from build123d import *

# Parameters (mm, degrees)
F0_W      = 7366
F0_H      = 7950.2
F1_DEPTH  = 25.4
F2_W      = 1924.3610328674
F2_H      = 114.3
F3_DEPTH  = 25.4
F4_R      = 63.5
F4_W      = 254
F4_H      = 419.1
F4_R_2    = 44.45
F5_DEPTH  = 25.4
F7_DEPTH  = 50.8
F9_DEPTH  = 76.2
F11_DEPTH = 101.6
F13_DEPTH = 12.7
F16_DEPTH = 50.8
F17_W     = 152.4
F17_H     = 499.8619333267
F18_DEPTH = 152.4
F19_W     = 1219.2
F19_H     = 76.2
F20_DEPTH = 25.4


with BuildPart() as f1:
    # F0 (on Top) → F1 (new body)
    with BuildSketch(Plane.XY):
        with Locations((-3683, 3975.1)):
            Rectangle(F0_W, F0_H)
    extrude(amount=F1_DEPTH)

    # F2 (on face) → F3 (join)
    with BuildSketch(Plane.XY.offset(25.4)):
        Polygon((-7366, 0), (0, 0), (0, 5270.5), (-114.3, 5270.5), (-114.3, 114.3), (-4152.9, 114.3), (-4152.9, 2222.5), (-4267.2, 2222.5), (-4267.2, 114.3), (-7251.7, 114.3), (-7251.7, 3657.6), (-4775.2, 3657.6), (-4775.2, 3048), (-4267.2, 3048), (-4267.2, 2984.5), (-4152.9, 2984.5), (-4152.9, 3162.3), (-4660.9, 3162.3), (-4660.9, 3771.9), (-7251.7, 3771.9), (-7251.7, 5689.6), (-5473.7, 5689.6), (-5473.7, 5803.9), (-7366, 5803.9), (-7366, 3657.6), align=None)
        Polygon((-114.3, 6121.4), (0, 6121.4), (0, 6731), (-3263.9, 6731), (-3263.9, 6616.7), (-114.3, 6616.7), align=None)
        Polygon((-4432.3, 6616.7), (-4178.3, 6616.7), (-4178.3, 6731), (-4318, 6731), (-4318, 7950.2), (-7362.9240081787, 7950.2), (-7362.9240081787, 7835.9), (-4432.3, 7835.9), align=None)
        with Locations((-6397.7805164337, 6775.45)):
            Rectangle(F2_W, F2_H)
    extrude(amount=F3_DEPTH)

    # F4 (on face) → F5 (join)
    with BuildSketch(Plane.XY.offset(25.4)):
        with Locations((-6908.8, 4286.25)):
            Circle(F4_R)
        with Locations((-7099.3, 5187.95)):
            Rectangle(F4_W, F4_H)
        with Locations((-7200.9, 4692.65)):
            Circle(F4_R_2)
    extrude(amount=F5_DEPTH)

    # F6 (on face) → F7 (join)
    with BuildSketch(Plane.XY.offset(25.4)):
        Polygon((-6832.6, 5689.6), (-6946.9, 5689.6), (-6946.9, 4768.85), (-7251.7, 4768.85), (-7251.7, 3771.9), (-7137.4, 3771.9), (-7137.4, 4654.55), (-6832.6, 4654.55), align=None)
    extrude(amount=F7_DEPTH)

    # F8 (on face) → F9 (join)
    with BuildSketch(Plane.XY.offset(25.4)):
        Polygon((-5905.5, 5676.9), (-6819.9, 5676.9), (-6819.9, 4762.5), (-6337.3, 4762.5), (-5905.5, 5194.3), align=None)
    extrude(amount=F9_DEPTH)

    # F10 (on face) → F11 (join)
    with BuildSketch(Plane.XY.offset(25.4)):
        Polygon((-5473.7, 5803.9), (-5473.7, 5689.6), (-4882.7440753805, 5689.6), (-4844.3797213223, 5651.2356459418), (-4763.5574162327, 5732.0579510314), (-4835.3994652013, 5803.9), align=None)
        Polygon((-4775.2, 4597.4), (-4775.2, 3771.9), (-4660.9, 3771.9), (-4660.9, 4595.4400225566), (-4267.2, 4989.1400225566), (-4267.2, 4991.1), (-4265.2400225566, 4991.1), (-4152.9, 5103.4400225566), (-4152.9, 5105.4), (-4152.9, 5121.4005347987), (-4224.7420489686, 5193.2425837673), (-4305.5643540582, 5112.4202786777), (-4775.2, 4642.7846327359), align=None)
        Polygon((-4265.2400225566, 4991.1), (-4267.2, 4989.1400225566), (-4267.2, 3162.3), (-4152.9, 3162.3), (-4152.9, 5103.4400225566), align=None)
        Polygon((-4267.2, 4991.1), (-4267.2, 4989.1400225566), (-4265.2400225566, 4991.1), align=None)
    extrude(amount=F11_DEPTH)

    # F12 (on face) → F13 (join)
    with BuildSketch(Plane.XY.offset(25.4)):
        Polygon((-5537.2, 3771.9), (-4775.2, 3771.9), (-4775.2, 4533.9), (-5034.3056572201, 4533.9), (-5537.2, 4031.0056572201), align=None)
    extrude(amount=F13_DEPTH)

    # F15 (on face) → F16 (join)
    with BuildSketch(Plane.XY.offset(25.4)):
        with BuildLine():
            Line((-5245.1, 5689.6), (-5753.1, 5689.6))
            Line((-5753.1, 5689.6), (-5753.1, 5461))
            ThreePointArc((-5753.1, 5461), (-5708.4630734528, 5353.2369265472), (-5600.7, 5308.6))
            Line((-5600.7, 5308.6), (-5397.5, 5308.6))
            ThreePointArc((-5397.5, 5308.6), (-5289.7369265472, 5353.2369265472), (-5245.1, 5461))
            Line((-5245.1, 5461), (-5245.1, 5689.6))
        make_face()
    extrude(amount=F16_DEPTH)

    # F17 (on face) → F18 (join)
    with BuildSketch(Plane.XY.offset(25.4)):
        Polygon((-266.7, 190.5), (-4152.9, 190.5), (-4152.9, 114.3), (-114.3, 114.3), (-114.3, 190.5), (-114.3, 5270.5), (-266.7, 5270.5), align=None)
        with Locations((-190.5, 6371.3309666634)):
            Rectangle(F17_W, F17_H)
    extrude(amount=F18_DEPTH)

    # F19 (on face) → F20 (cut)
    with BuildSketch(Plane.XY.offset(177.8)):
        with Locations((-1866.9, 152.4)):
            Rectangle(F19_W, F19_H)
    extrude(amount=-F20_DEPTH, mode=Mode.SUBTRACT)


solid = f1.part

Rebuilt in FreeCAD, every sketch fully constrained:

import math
import FreeCAD as App
import Part
import Sketcher

V = App.Vector
Q = App.Units.Quantity

doc = App.newDocument("Part")
body = doc.addObject("PartDesign::Body", "Body")

# Sketch on XY plane
sketch1 = doc.addObject("Sketcher::SketchObject", "Sketch")
body.addObject(sketch1)
sketch1.AttachmentSupport = (doc.XY_Plane, [""])
sketch1.MapMode = "FlatFace"
sketch1.addGeometry(Part.LineSegment(V(-7366, 7950, 0), V(-7366, 0, 0)), False)
sketch1.addGeometry(Part.LineSegment(V(-7366, 0, 0), V(0, 0, 0)), False)
sketch1.addGeometry(Part.LineSegment(V(0, 0, 0), V(0, 7950, 0)), False)
sketch1.addGeometry(Part.LineSegment(V(0, 7950, 0), V(-7366, 7950, 0)), False)
sketch1.addConstraint(Sketcher.Constraint("Coincident", 0, 2, 1, 1))
sketch1.addConstraint(Sketcher.Constraint("Coincident", 1, 2, 2, 1))
sketch1.addConstraint(Sketcher.Constraint("Coincident", 2, 2, 3, 1))
sketch1.addConstraint(Sketcher.Constraint("Coincident", 3, 2, 0, 1))
sketch1.addConstraint(Sketcher.Constraint("Vertical", 0))
sketch1.addConstraint(Sketcher.Constraint("Horizontal", 1))
sketch1.addConstraint(Sketcher.Constraint("Vertical", 2))
sketch1.addConstraint(Sketcher.Constraint("Horizontal", 3))
sketch1.addConstraint(Sketcher.Constraint("Coincident", 1, 2, -1, 1))
sketch1.addConstraint(Sketcher.Constraint("DistanceX", 1, 1, 1, 2, Q("290 in")))
sketch1.addConstraint(Sketcher.Constraint("DistanceY", 0, 2, 0, 1, Q("313 in")))
pad1 = doc.addObject("PartDesign::Pad", "Pad")
body.addObject(pad1)
pad1.Profile = sketch1
pad1.Length = Q("1 in")

# Sketch on XY plane
sketch2 = doc.addObject("Sketcher::SketchObject", "Sketch001")
body.addObject(sketch2)
sketch2.AttachmentSupport = (doc.XY_Plane, [""])
sketch2.MapMode = "FlatFace"
sketch2.AttachmentOffset = App.Placement(V(0, 0, 1 * 25.4), App.Rotation())
sketch2.addGeometry(Part.LineSegment(V(-7366, 0, 0), V(0, 0, 0)), False)
sketch2.addGeometry(Part.LineSegment(V(0, 0, 0), V(0, 5270, 0)), False)
sketch2.addGeometry(Part.LineSegment(V(0, 5270, 0), V(-114, 5270, 0)), False)
sketch2.addGeometry(Part.LineSegment(V(-114, 5270, 0), V(-114, 114, 0)), False)
sketch2.addGeometry(Part.LineSegment(V(-114, 114, 0), V(-4153, 114, 0)), False)
sketch2.addGeometry(Part.LineSegment(V(-4153, 114, 0), V(-4153, 2222, 0)), False)
sketch2.addGeometry(Part.LineSegment(V(-4153, 2222, 0), V(-4267, 2222, 0)), False)
sketch2.addGeometry(Part.LineSegment(V(-4267, 2222, 0), V(-4267, 114, 0)), False)
sketch2.addGeometry(Part.LineSegment(V(-4267, 114, 0), V(-7252, 114, 0)), False)
sketch2.addGeometry(Part.LineSegment(V(-7252, 114, 0), V(-7252, 3658, 0)), False)
sketch2.addGeometry(Part.LineSegment(V(-7252, 3658, 0), V(-4775, 3658, 0)), False)
sketch2.addGeometry(Part.LineSegment(V(-4775, 3658, 0), V(-4775, 3048, 0)), False)
sketch2.addGeometry(Part.LineSegment(V(-4775, 3048, 0), V(-4267, 3048, 0)), False)
sketch2.addGeometry(Part.LineSegment(V(-4267, 3048, 0), V(-4267, 2984, 0)), False)
sketch2.addGeometry(Part.LineSegment(V(-4267, 2984, 0), V(-4153, 2984, 0)), False)
sketch2.addGeometry(Part.LineSegment(V(-4153, 2984, 0), V(-4153, 3162, 0)), False)
sketch2.addGeometry(Part.LineSegment(V(-4153, 3162, 0), V(-4661, 3162, 0)), False)
sketch2.addGeometry(Part.LineSegment(V(-4661, 3162, 0), V(-4661, 3772, 0)), False)
sketch2.addGeometry(Part.LineSegment(V(-4661, 3772, 0), V(-7252, 3772, 0)), False)
sketch2.addGeometry(Part.LineSegment(V(-7252, 3772, 0), V(-7252, 5690, 0)), False)
sketch2.addGeometry(Part.LineSegment(V(-7252, 5690, 0), V(-5474, 5690, 0)), False)
sketch2.addGeometry(Part.LineSegment(V(-5474, 5690, 0), V(-5474, 5804, 0)), False)
sketch2.addGeometry(Part.LineSegment(V(-5474, 5804, 0), V(-7366, 5804, 0)), False)
sketch2.addGeometry(Part.LineSegment(V(-7366, 5804, 0), V(-7366, 0, 0)), False)
sketch2.addGeometry(Part.LineSegment(V(-114, 6121, 0), V(0, 6121, 0)), False)
sketch2.addGeometry(Part.LineSegment(V(0, 6121, 0), V(0, 6731, 0)), False)
sketch2.addGeometry(Part.LineSegment(V(0, 6731, 0), V(-3264, 6731, 0)), False)
sketch2.addGeometry(Part.LineSegment(V(-3264, 6731, 0), V(-3264, 6617, 0)), False)
sketch2.addGeometry(Part.LineSegment(V(-3264, 6617, 0), V(-114, 6617, 0)), False)
sketch2.addGeometry(Part.LineSegment(V(-114, 6617, 0), V(-114, 6121, 0)), False)
sketch2.addGeometry(Part.LineSegment(V(-4432, 6617, 0), V(-4178, 6617, 0)), False)
sketch2.addGeometry(Part.LineSegment(V(-4178, 6617, 0), V(-4178, 6731, 0)), False)
sketch2.addGeometry(Part.LineSegment(V(-4178, 6731, 0), V(-4318, 6731, 0)), False)
sketch2.addGeometry(Part.LineSegment(V(-4318, 6731, 0), V(-4318, 7950, 0)), False)
sketch2.addGeometry(Part.LineSegment(V(-4318, 7950, 0), V(-7363, 7950, 0)), False)
sketch2.addGeometry(Part.LineSegment(V(-7363, 7950, 0), V(-7363, 7836, 0)), False)
sketch2.addGeometry(Part.LineSegment(V(-7363, 7836, 0), V(-4432, 7836, 0)), False)
sketch2.addGeometry(Part.LineSegment(V(-4432, 7836, 0), V(-4432, 6617, 0)), False)
sketch2.addGeometry(Part.LineSegment(V(-7360, 6833, 0), V(-7360, 6718, 0)), False)
sketch2.addGeometry(Part.LineSegment(V(-7360, 6718, 0), V(-5436, 6718, 0)), False)
sketch2.addGeometry(Part.LineSegment(V(-5436, 6718, 0), V(-5436, 6833, 0)), False)
sketch2.addGeometry(Part.LineSegment(V(-5436, 6833, 0), V(-7360, 6833, 0)), False)
sketch2.addConstraint(Sketcher.Constraint("Coincident", 0, 2, 1, 1))
sketch2.addConstraint(Sketcher.Constraint("Coincident", 1, 2, 2, 1))
sketch2.addConstraint(Sketcher.Constraint("Coincident", 2, 2, 3, 1))
sketch2.addConstraint(Sketcher.Constraint("Coincident", 3, 2, 4, 1))
sketch2.addConstraint(Sketcher.Constraint("Coincident", 4, 2, 5, 1))
sketch2.addConstraint(Sketcher.Constraint("Coincident", 5, 2, 6, 1))
sketch2.addConstraint(Sketcher.Constraint("Coincident", 6, 2, 7, 1))
sketch2.addConstraint(Sketcher.Constraint("Coincident", 7, 2, 8, 1))
sketch2.addConstraint(Sketcher.Constraint("Coincident", 8, 2, 9, 1))
sketch2.addConstraint(Sketcher.Constraint("Coincident", 9, 2, 10, 1))
sketch2.addConstraint(Sketcher.Constraint("Coincident", 10, 2, 11, 1))
sketch2.addConstraint(Sketcher.Constraint("Coincident", 11, 2, 12, 1))
sketch2.addConstraint(Sketcher.Constraint("Coincident", 12, 2, 13, 1))
sketch2.addConstraint(Sketcher.Constraint("Coincident", 13, 2, 14, 1))
sketch2.addConstraint(Sketcher.Constraint("Coincident", 14, 2, 15, 1))
sketch2.addConstraint(Sketcher.Constraint("Coincident", 15, 2, 16, 1))
sketch2.addConstraint(Sketcher.Constraint("Coincident", 16, 2, 17, 1))
sketch2.addConstraint(Sketcher.Constraint("Coincident", 17, 2, 18, 1))
sketch2.addConstraint(Sketcher.Constraint("Coincident", 18, 2, 19, 1))
sketch2.addConstraint(Sketcher.Constraint("Coincident", 19, 2, 20, 1))
sketch2.addConstraint(Sketcher.Constraint("Coincident", 20, 2, 21, 1))
sketch2.addConstraint(Sketcher.Constraint("Coincident", 21, 2, 22, 1))
sketch2.addConstraint(Sketcher.Constraint("Coincident", 22, 2, 23, 1))
sketch2.addConstraint(Sketcher.Constraint("Coincident", 23, 2, 0, 1))
sketch2.addConstraint(Sketcher.Constraint("Coincident", 24, 2, 25, 1))
sketch2.addConstraint(Sketcher.Constraint("Coincident", 25, 2, 26, 1))
sketch2.addConstraint(Sketcher.Constraint("Coincident", 26, 2, 27, 1))
sketch2.addConstraint(Sketcher.Constraint("Coincident", 27, 2, 28, 1))
sketch2.addConstraint(Sketcher.Constraint("Coincident", 28, 2, 29, 1))
sketch2.addConstraint(Sketcher.Constraint("Coincident", 29, 2, 24, 1))
sketch2.addConstraint(Sketcher.Constraint("Coincident", 30, 2, 31, 1))
sketch2.addConstraint(Sketcher.Constraint("Coincident", 31, 2, 32, 1))
sketch2.addConstraint(Sketcher.Constraint("Coincident", 32, 2, 33, 1))
sketch2.addConstraint(Sketcher.Constraint("Coincident", 33, 2, 34, 1))
sketch2.addConstraint(Sketcher.Constraint("Coincident", 34, 2, 35, 1))
sketch2.addConstraint(Sketcher.Constraint("Coincident", 35, 2, 36, 1))
sketch2.addConstraint(Sketcher.Constraint("Coincident", 36, 2, 37, 1))
sketch2.addConstraint(Sketcher.Constraint("Coincident", 37, 2, 30, 1))
sketch2.addConstraint(Sketcher.Constraint("Coincident", 38, 2, 39, 1))
sketch2.addConstraint(Sketcher.Constraint("Coincident", 39, 2, 40, 1))
sketch2.addConstraint(Sketcher.Constraint("Coincident", 40, 2, 41, 1))
sketch2.addConstraint(Sketcher.Constraint("Coincident", 41, 2, 38, 1))
sketch2.addConstraint(Sketcher.Constraint("Horizontal", 0))
sketch2.addConstraint(Sketcher.Constraint("Vertical", 1))
sketch2.addConstraint(Sketcher.Constraint("Horizontal", 2))
sketch2.addConstraint(Sketcher.Constraint("Vertical", 3))
sketch2.addConstraint(Sketcher.Constraint("Horizontal", 4))
sketch2.addConstraint(Sketcher.Constraint("Vertical", 5))
sketch2.addConstraint(Sketcher.Constraint("Horizontal", 6))
sketch2.addConstraint(Sketcher.Constraint("Vertical", 7))
sketch2.addConstraint(Sketcher.Constraint("Horizontal", 8))
sketch2.addConstraint(Sketcher.Constraint("Vertical", 9))
sketch2.addConstraint(Sketcher.Constraint("Horizontal", 10))
sketch2.addConstraint(Sketcher.Constraint("Vertical", 11))
sketch2.addConstraint(Sketcher.Constraint("Horizontal", 12))
sketch2.addConstraint(Sketcher.Constraint("Vertical", 13))
sketch2.addConstraint(Sketcher.Constraint("Horizontal", 14))
sketch2.addConstraint(Sketcher.Constraint("Vertical", 15))
sketch2.addConstraint(Sketcher.Constraint("Horizontal", 16))
sketch2.addConstraint(Sketcher.Constraint("Vertical", 17))
sketch2.addConstraint(Sketcher.Constraint("Horizontal", 18))
sketch2.addConstraint(Sketcher.Constraint("Vertical", 19))
sketch2.addConstraint(Sketcher.Constraint("Horizontal", 20))
sketch2.addConstraint(Sketcher.Constraint("Vertical", 21))
sketch2.addConstraint(Sketcher.Constraint("Horizontal", 22))
sketch2.addConstraint(Sketcher.Constraint("Vertical", 23))
sketch2.addConstraint(Sketcher.Constraint("Horizontal", 24))
sketch2.addConstraint(Sketcher.Constraint("Vertical", 25))
sketch2.addConstraint(Sketcher.Constraint("Horizontal", 26))
sketch2.addConstraint(Sketcher.Constraint("Vertical", 27))
sketch2.addConstraint(Sketcher.Constraint("Horizontal", 28))
sketch2.addConstraint(Sketcher.Constraint("Vertical", 29))
sketch2.addConstraint(Sketcher.Constraint("Horizontal", 30))
sketch2.addConstraint(Sketcher.Constraint("Vertical", 31))
sketch2.addConstraint(Sketcher.Constraint("Horizontal", 32))
sketch2.addConstraint(Sketcher.Constraint("Vertical", 33))
sketch2.addConstraint(Sketcher.Constraint("Horizontal", 34))
sketch2.addConstraint(Sketcher.Constraint("Vertical", 35))
sketch2.addConstraint(Sketcher.Constraint("Horizontal", 36))
sketch2.addConstraint(Sketcher.Constraint("Vertical", 37))
sketch2.addConstraint(Sketcher.Constraint("Vertical", 38))
sketch2.addConstraint(Sketcher.Constraint("Horizontal", 39))
sketch2.addConstraint(Sketcher.Constraint("Vertical", 40))
sketch2.addConstraint(Sketcher.Constraint("Horizontal", 41))
sketch2.addConstraint(Sketcher.Constraint("Coincident", 0, 2, -1, 1))
sketch2.addConstraint(Sketcher.Constraint("PointOnObject", 24, 2, -2))
sketch2.addConstraint(Sketcher.Constraint("Horizontal", 4, 2, 7, 2))
sketch2.addConstraint(Sketcher.Constraint("Horizontal", 28, 2, 30, 2))
sketch2.addConstraint(Sketcher.Constraint("Horizontal", 26, 2, 31, 2))
sketch2.addConstraint(Sketcher.Constraint("Vertical", 7, 2, 12, 2))
sketch2.addConstraint(Sketcher.Constraint("Vertical", 5, 2, 14, 2))
sketch2.addConstraint(Sketcher.Constraint("Vertical", 9, 2, 18, 2))
sketch2.addConstraint(Sketcher.Constraint("Vertical", 3, 2, 28, 2))
sketch2.addConstraint(Sketcher.Constraint("Equal", 2, 6))
sketch2.addConstraint(Sketcher.Constraint("Equal", 12, 16))
sketch2.addConstraint(Sketcher.Constraint("Equal", 11, 17))
sketch2.addConstraint(Sketcher.Constraint("Equal", 24, 21))
sketch2.addConstraint(Sketcher.Constraint("Equal", 17, 25))
sketch2.addConstraint(Sketcher.Constraint("Equal", 21, 27))
sketch2.addConstraint(Sketcher.Constraint("Equal", 31, 35))
sketch2.addConstraint(Sketcher.Constraint("Equal", 35, 38))
sketch2.addConstraint(Sketcher.Constraint("DistanceX", 0, 1, 0, 2, Q("290 in")))
sketch2.addConstraint(Sketcher.Constraint("DistanceX", 4, 2, 4, 1, Q("159 in")))
sketch2.addConstraint(Sketcher.Constraint("DistanceX", 12, 1, 12, 2, Q("20 in")))
sketch2.addConstraint(Sketcher.Constraint("DistanceX", 18, 2, 18, 1, Q("102 in")))
sketch2.addConstraint(Sketcher.Constraint("DistanceX", 20, 1, 20, 2, Q("70 in")))
sketch2.addConstraint(Sketcher.Constraint("DistanceX", 28, 1, 28, 2, Q("124 in")))
sketch2.addConstraint(Sketcher.Constraint("DistanceX", 30, 1, 30, 2, Q("10 in")))
sketch2.addConstraint(Sketcher.Constraint("DistanceY", 3, 2, 3, 1, Q("203 in")))
sketch2.addConstraint(Sketcher.Constraint("DistanceY", 5, 1, 5, 2, Q("83 in")))
sketch2.addConstraint(Sketcher.Constraint("DistanceY", 11, 2, 11, 1, Q("24 in")))
sketch2.addConstraint(Sketcher.Constraint("DistanceY", 15, 1, 15, 2, Q("7 in")))
sketch2.addConstraint(Sketcher.Constraint("DistanceY", 33, 1, 33, 2, Q("48 in")))
sketch2.addConstraint(Sketcher.Constraint("DistanceX", 2, 2, 2, 1, Q("4.5 in")))
sketch2.addConstraint(Sketcher.Constraint("DistanceX", 32, 2, 32, 1, Q("5.5 in")))
sketch2.addConstraint(Sketcher.Constraint("DistanceY", 1, 1, 1, 2, Q("207.5 in")))
sketch2.addConstraint(Sketcher.Constraint("DistanceY", 9, 1, 9, 2, Q("139.5 in")))
sketch2.addConstraint(Sketcher.Constraint("DistanceY", 13, 2, 13, 1, Q("2.5 in")))
sketch2.addConstraint(Sketcher.Constraint("DistanceY", 19, 1, 19, 2, Q("75.5 in")))
sketch2.addConstraint(Sketcher.Constraint("DistanceY", -1, 1, 24, 2, Q("241 in")))
sketch2.addConstraint(Sketcher.Constraint("DistanceX", 32, 2, -1, 1, Q("170 in")))
sketch2.addConstraint(Sketcher.Constraint("DistanceX", 39, 2, -1, 1, Q("214 in")))
sketch2.addConstraint(Sketcher.Constraint("DistanceY", -1, 1, 40, 2, Q("269 in")))
sketch2.addConstraint(Sketcher.Constraint("DistanceX", 34, 2, 34, 1, Q("3044.924008 mm")))
sketch2.addConstraint(Sketcher.Constraint("DistanceX", 39, 1, 39, 2, Q("1924.361033 mm")))
pad2 = doc.addObject("PartDesign::Pad", "Pad001")
body.addObject(pad2)
pad2.Profile = sketch2
pad2.Length = Q("1 in")

# Sketch on XY plane
sketch3 = doc.addObject("Sketcher::SketchObject", "Sketch002")
body.addObject(sketch3)
sketch3.AttachmentSupport = (doc.XY_Plane, [""])
sketch3.MapMode = "FlatFace"
sketch3.AttachmentOffset = App.Placement(V(0, 0, 1 * 25.4), App.Rotation())
sketch3.addGeometry(Part.Circle(V(-6909, 4286, 0), V(0, 0, 1), 64), False)
sketch3.addGeometry(Part.LineSegment(V(-7226, 5398, 0), V(-7226, 4978, 0)), False)
sketch3.addGeometry(Part.LineSegment(V(-7226, 4978, 0), V(-6972, 4978, 0)), False)
sketch3.addGeometry(Part.LineSegment(V(-6972, 4978, 0), V(-6972, 5398, 0)), False)
sketch3.addGeometry(Part.LineSegment(V(-6972, 5398, 0), V(-7226, 5398, 0)), False)
sketch3.addGeometry(Part.Circle(V(-7201, 4693, 0), V(0, 0, 1), 44), False)
sketch3.addConstraint(Sketcher.Constraint("Coincident", 1, 2, 2, 1))
sketch3.addConstraint(Sketcher.Constraint("Coincident", 2, 2, 3, 1))
sketch3.addConstraint(Sketcher.Constraint("Coincident", 3, 2, 4, 1))
sketch3.addConstraint(Sketcher.Constraint("Coincident", 4, 2, 1, 1))
sketch3.addConstraint(Sketcher.Constraint("Vertical", 1))
sketch3.addConstraint(Sketcher.Constraint("Horizontal", 2))
sketch3.addConstraint(Sketcher.Constraint("Vertical", 3))
sketch3.addConstraint(Sketcher.Constraint("Horizontal", 4))
sketch3.addConstraint(Sketcher.Constraint("Diameter", 0, Q("5 in")))
sketch3.addConstraint(Sketcher.Constraint("Diameter", 5, Q("3.5 in")))
sketch3.addConstraint(Sketcher.Constraint("DistanceX", 2, 1, 2, 2, Q("10 in")))
sketch3.addConstraint(Sketcher.Constraint("DistanceY", 1, 2, 1, 1, Q("16.5 in")))
sketch3.addConstraint(Sketcher.Constraint("DistanceX", 0, 3, -1, 1, Q("272 in")))
sketch3.addConstraint(Sketcher.Constraint("DistanceY", -1, 1, 1, 2, Q("196 in")))
sketch3.addConstraint(Sketcher.Constraint("DistanceY", 0, 3, 5, 3, Q("16 in")))
sketch3.addConstraint(Sketcher.Constraint("DistanceX", 1, 2, 5, 3, Q("1 in")))
sketch3.addConstraint(Sketcher.Constraint("DistanceX", 5, 3, -1, 1, Q("283.5 in")))
sketch3.addConstraint(Sketcher.Constraint("DistanceY", -1, 1, 0, 3, Q("168.75 in")))
pad3 = doc.addObject("PartDesign::Pad", "Pad002")
body.addObject(pad3)
pad3.Profile = sketch3
pad3.Length = Q("1 in")

# Sketch on XY plane
sketch4 = doc.addObject("Sketcher::SketchObject", "Sketch003")
body.addObject(sketch4)
sketch4.AttachmentSupport = (doc.XY_Plane, [""])
sketch4.MapMode = "FlatFace"
sketch4.AttachmentOffset = App.Placement(V(0, 0, 1 * 25.4), App.Rotation())
sketch4.addGeometry(Part.LineSegment(V(-6833, 5690, 0), V(-6947, 5690, 0)), False)
sketch4.addGeometry(Part.LineSegment(V(-6947, 5690, 0), V(-6947, 4769, 0)), False)
sketch4.addGeometry(Part.LineSegment(V(-6947, 4769, 0), V(-7252, 4769, 0)), False)
sketch4.addGeometry(Part.LineSegment(V(-7252, 4769, 0), V(-7252, 3772, 0)), False)
sketch4.addGeometry(Part.LineSegment(V(-7252, 3772, 0), V(-7137, 3772, 0)), False)
sketch4.addGeometry(Part.LineSegment(V(-7137, 3772, 0), V(-7137, 4655, 0)), False)
sketch4.addGeometry(Part.LineSegment(V(-7137, 4655, 0), V(-6833, 4655, 0)), False)
sketch4.addGeometry(Part.LineSegment(V(-6833, 4655, 0), V(-6833, 5690, 0)), False)
sketch4.addConstraint(Sketcher.Constraint("Coincident", 0, 2, 1, 1))
sketch4.addConstraint(Sketcher.Constraint("Coincident", 1, 2, 2, 1))
sketch4.addConstraint(Sketcher.Constraint("Coincident", 2, 2, 3, 1))
sketch4.addConstraint(Sketcher.Constraint("Coincident", 3, 2, 4, 1))
sketch4.addConstraint(Sketcher.Constraint("Coincident", 4, 2, 5, 1))
sketch4.addConstraint(Sketcher.Constraint("Coincident", 5, 2, 6, 1))
sketch4.addConstraint(Sketcher.Constraint("Coincident", 6, 2, 7, 1))
sketch4.addConstraint(Sketcher.Constraint("Coincident", 7, 2, 0, 1))
sketch4.addConstraint(Sketcher.Constraint("Horizontal", 0))
sketch4.addConstraint(Sketcher.Constraint("Vertical", 1))
sketch4.addConstraint(Sketcher.Constraint("Horizontal", 2))
sketch4.addConstraint(Sketcher.Constraint("Vertical", 3))
sketch4.addConstraint(Sketcher.Constraint("Horizontal", 4))
sketch4.addConstraint(Sketcher.Constraint("Vertical", 5))
sketch4.addConstraint(Sketcher.Constraint("Horizontal", 6))
sketch4.addConstraint(Sketcher.Constraint("Vertical", 7))
sketch4.addConstraint(Sketcher.Constraint("Equal", 0, 4))
sketch4.addConstraint(Sketcher.Constraint("DistanceX", 2, 2, 2, 1, Q("12 in")))
sketch4.addConstraint(Sketcher.Constraint("DistanceX", 0, 2, 0, 1, Q("4.5 in")))
sketch4.addConstraint(Sketcher.Constraint("DistanceY", -1, 1, 0, 2, Q("224 in")))
sketch4.addConstraint(Sketcher.Constraint("DistanceX", 4, 2, -1, 1, Q("281 in")))
sketch4.addConstraint(Sketcher.Constraint("DistanceY", 1, 2, 1, 1, Q("36.25 in")))
sketch4.addConstraint(Sketcher.Constraint("DistanceY", 3, 2, 3, 1, Q("39.25 in")))
sketch4.addConstraint(Sketcher.Constraint("DistanceY", 5, 1, 5, 2, Q("34.75 in")))
pad4 = doc.addObject("PartDesign::Pad", "Pad003")
body.addObject(pad4)
pad4.Profile = sketch4
pad4.Length = Q("2 in")

# Sketch on XY plane
sketch5 = doc.addObject("Sketcher::SketchObject", "Sketch004")
body.addObject(sketch5)
sketch5.AttachmentSupport = (doc.XY_Plane, [""])
sketch5.MapMode = "FlatFace"
sketch5.AttachmentOffset = App.Placement(V(0, 0, 1 * 25.4), App.Rotation())
sketch5.addGeometry(Part.LineSegment(V(-5906, 5677, 0), V(-6820, 5677, 0)), False)
sketch5.addGeometry(Part.LineSegment(V(-6820, 5677, 0), V(-6820, 4762, 0)), False)
sketch5.addGeometry(Part.LineSegment(V(-6820, 4762, 0), V(-6337, 4762, 0)), False)
sketch5.addGeometry(Part.LineSegment(V(-6337, 4762, 0), V(-5906, 5194, 0)), False)
sketch5.addGeometry(Part.LineSegment(V(-5906, 5194, 0), V(-5906, 5677, 0)), False)
sketch5.addConstraint(Sketcher.Constraint("Coincident", 0, 2, 1, 1))
sketch5.addConstraint(Sketcher.Constraint("Coincident", 1, 2, 2, 1))
sketch5.addConstraint(Sketcher.Constraint("Coincident", 2, 2, 3, 1))
sketch5.addConstraint(Sketcher.Constraint("Coincident", 3, 2, 4, 1))
sketch5.addConstraint(Sketcher.Constraint("Coincident", 4, 2, 0, 1))
sketch5.addConstraint(Sketcher.Constraint("Horizontal", 0))
sketch5.addConstraint(Sketcher.Constraint("Vertical", 1))
sketch5.addConstraint(Sketcher.Constraint("Horizontal", 2))
sketch5.addConstraint(Sketcher.Constraint("Vertical", 4))
sketch5.addConstraint(Sketcher.Constraint("Equal", 0, 1))
sketch5.addConstraint(Sketcher.Constraint("Equal", 2, 4))
sketch5.addConstraint(Sketcher.Constraint("DistanceX", 0, 2, 0, 1, Q("36 in")))
sketch5.addConstraint(Sketcher.Constraint("DistanceX", 2, 1, 2, 2, Q("19 in")))
sketch5.addConstraint(Sketcher.Constraint("DistanceX", 0, 2, -1, 1, Q("268.5 in")))
sketch5.addConstraint(Sketcher.Constraint("DistanceY", -1, 1, 0, 2, Q("223.5 in")))
pad5 = doc.addObject("PartDesign::Pad", "Pad004")
body.addObject(pad5)
pad5.Profile = sketch5
pad5.Length = Q("3 in")

# Sketch on XY plane
sketch6 = doc.addObject("Sketcher::SketchObject", "Sketch005")
body.addObject(sketch6)
sketch6.AttachmentSupport = (doc.XY_Plane, [""])
sketch6.MapMode = "FlatFace"
sketch6.AttachmentOffset = App.Placement(V(0, 0, 1 * 25.4), App.Rotation())
sketch6.addGeometry(Part.LineSegment(V(-5474, 5804, 0), V(-5474, 5690, 0)), False)
sketch6.addGeometry(Part.LineSegment(V(-5474, 5690, 0), V(-4883, 5690, 0)), False)
sketch6.addGeometry(Part.LineSegment(V(-4883, 5690, 0), V(-4844, 5651, 0)), False)
sketch6.addGeometry(Part.LineSegment(V(-4844, 5651, 0), V(-4764, 5732, 0)), False)
sketch6.addGeometry(Part.LineSegment(V(-4764, 5732, 0), V(-4835, 5804, 0)), False)
sketch6.addGeometry(Part.LineSegment(V(-4835, 5804, 0), V(-5474, 5804, 0)), False)
sketch6.addGeometry(Part.LineSegment(V(-4661, 4595, 0), V(-4267, 4989, 0)), False)
sketch6.addGeometry(Part.LineSegment(V(-4267, 4989, 0), V(-4267, 3162, 0)), False)
sketch6.addGeometry(Part.LineSegment(V(-4267, 3162, 0), V(-4153, 3162, 0)), False)
sketch6.addGeometry(Part.LineSegment(V(-4153, 3162, 0), V(-4153, 5121, 0)), False)
sketch6.addGeometry(Part.LineSegment(V(-4153, 5121, 0), V(-4225, 5193, 0)), False)
sketch6.addGeometry(Part.LineSegment(V(-4225, 5193, 0), V(-4775, 4643, 0)), False)
sketch6.addGeometry(Part.LineSegment(V(-4775, 4643, 0), V(-4775, 3772, 0)), False)
sketch6.addGeometry(Part.LineSegment(V(-4775, 3772, 0), V(-4661, 3772, 0)), False)
sketch6.addGeometry(Part.LineSegment(V(-4661, 3772, 0), V(-4661, 4595, 0)), False)
sketch6.addConstraint(Sketcher.Constraint("Coincident", 0, 2, 1, 1))
sketch6.addConstraint(Sketcher.Constraint("Coincident", 1, 2, 2, 1))
sketch6.addConstraint(Sketcher.Constraint("Coincident", 2, 2, 3, 1))
sketch6.addConstraint(Sketcher.Constraint("Coincident", 3, 2, 4, 1))
sketch6.addConstraint(Sketcher.Constraint("Coincident", 4, 2, 5, 1))
sketch6.addConstraint(Sketcher.Constraint("Coincident", 5, 2, 0, 1))
sketch6.addConstraint(Sketcher.Constraint("Coincident", 6, 2, 7, 1))
sketch6.addConstraint(Sketcher.Constraint("Coincident", 7, 2, 8, 1))
sketch6.addConstraint(Sketcher.Constraint("Coincident", 8, 2, 9, 1))
sketch6.addConstraint(Sketcher.Constraint("Coincident", 9, 2, 10, 1))
sketch6.addConstraint(Sketcher.Constraint("Coincident", 10, 2, 11, 1))
sketch6.addConstraint(Sketcher.Constraint("Coincident", 11, 2, 12, 1))
sketch6.addConstraint(Sketcher.Constraint("Coincident", 12, 2, 13, 1))
sketch6.addConstraint(Sketcher.Constraint("Coincident", 13, 2, 14, 1))
sketch6.addConstraint(Sketcher.Constraint("Coincident", 14, 2, 6, 1))
sketch6.addConstraint(Sketcher.Constraint("Vertical", 0))
sketch6.addConstraint(Sketcher.Constraint("Horizontal", 1))
sketch6.addConstraint(Sketcher.Constraint("Horizontal", 5))
sketch6.addConstraint(Sketcher.Constraint("Vertical", 7))
sketch6.addConstraint(Sketcher.Constraint("Horizontal", 8))
sketch6.addConstraint(Sketcher.Constraint("Vertical", 9))
sketch6.addConstraint(Sketcher.Constraint("Vertical", 12))
sketch6.addConstraint(Sketcher.Constraint("Horizontal", 13))
sketch6.addConstraint(Sketcher.Constraint("Vertical", 14))
sketch6.addConstraint(Sketcher.Constraint("Perpendicular", 2, 3))
sketch6.addConstraint(Sketcher.Constraint("Perpendicular", 3, 4))
sketch6.addConstraint(Sketcher.Constraint("Perpendicular", 4, 6))
sketch6.addConstraint(Sketcher.Constraint("Perpendicular", 6, 10))
sketch6.addConstraint(Sketcher.Constraint("Perpendicular", 10, 11))
sketch6.addConstraint(Sketcher.Constraint("Equal", 8, 13))
sketch6.addConstraint(Sketcher.Constraint("Equal", 13, 0))
sketch6.addConstraint(Sketcher.Constraint("Equal", 4, 10))
sketch6.addConstraint(Sketcher.Constraint("Distance", 4, Q("4 in")))
sketch6.addConstraint(Sketcher.Constraint("DistanceX", 8, 1, 8, 2, Q("4.5 in")))
sketch6.addConstraint(Sketcher.Constraint("DistanceY", -1, 1, 0, 2, Q("224 in")))
sketch6.addConstraint(Sketcher.Constraint("DistanceX", 6, 2, -1, 1, Q("168 in")))
sketch6.addConstraint(Sketcher.Constraint("DistanceX", 11, 2, -1, 1, Q("188 in")))
sketch6.addConstraint(Sketcher.Constraint("Angle", 2, Q("-45 deg")))
sketch6.addConstraint(Sketcher.Constraint("DistanceY", 7, 2, 4, 2, Q("104 in")))
sketch6.addConstraint(Sketcher.Constraint("DistanceY", 7, 2, 12, 2, Q("24 in")))
sketch6.addConstraint(Sketcher.Constraint("Distance", 3, Q("4.5 in")))
sketch6.addConstraint(Sketcher.Constraint("DistanceX", 0, 2, -1, 1, Q("215.5 in")))
sketch6.addConstraint(Sketcher.Constraint("DistanceX", 1, 1, 1, 2, Q("590.955925 mm")))
sketch6.addConstraint(Sketcher.Constraint("DistanceY", 7, 2, 7, 1, Q("1826.840023 mm")))
sketch6.addConstraint(Sketcher.Constraint("DistanceY", 9, 1, 9, 2, Q("1959.100535 mm")))
pad6 = doc.addObject("PartDesign::Pad", "Pad005")
body.addObject(pad6)
pad6.Profile = sketch6
pad6.Length = Q("4 in")

# Sketch on XY plane
sketch7 = doc.addObject("Sketcher::SketchObject", "Sketch006")
body.addObject(sketch7)
sketch7.AttachmentSupport = (doc.XY_Plane, [""])
sketch7.MapMode = "FlatFace"
sketch7.AttachmentOffset = App.Placement(V(0, 0, 1 * 25.4), App.Rotation())
sketch7.addGeometry(Part.LineSegment(V(-5537, 3772, 0), V(-4775, 3772, 0)), False)
sketch7.addGeometry(Part.LineSegment(V(-4775, 3772, 0), V(-4775, 4534, 0)), False)
sketch7.addGeometry(Part.LineSegment(V(-4775, 4534, 0), V(-5034, 4534, 0)), False)
sketch7.addGeometry(Part.LineSegment(V(-5034, 4534, 0), V(-5537, 4031, 0)), False)
sketch7.addGeometry(Part.LineSegment(V(-5537, 4031, 0), V(-5537, 3772, 0)), False)
sketch7.addConstraint(Sketcher.Constraint("Coincident", 0, 2, 1, 1))
sketch7.addConstraint(Sketcher.Constraint("Coincident", 1, 2, 2, 1))
sketch7.addConstraint(Sketcher.Constraint("Coincident", 2, 2, 3, 1))
sketch7.addConstraint(Sketcher.Constraint("Coincident", 3, 2, 4, 1))
sketch7.addConstraint(Sketcher.Constraint("Coincident", 4, 2, 0, 1))
sketch7.addConstraint(Sketcher.Constraint("Horizontal", 0))
sketch7.addConstraint(Sketcher.Constraint("Vertical", 1))
sketch7.addConstraint(Sketcher.Constraint("Horizontal", 2))
sketch7.addConstraint(Sketcher.Constraint("Vertical", 4))
sketch7.addConstraint(Sketcher.Constraint("Equal", 0, 1))
sketch7.addConstraint(Sketcher.Constraint("Equal", 2, 4))
sketch7.addConstraint(Sketcher.Constraint("DistanceX", 0, 1, 0, 2, Q("30 in")))
sketch7.addConstraint(Sketcher.Constraint("Distance", 3, Q("28 in")))
sketch7.addConstraint(Sketcher.Constraint("DistanceX", 0, 2, -1, 1, Q("188 in")))
sketch7.addConstraint(Sketcher.Constraint("DistanceY", -1, 1, 0, 2, Q("148.5 in")))
pad7 = doc.addObject("PartDesign::Pad", "Pad006")
body.addObject(pad7)
pad7.Profile = sketch7
pad7.Length = Q("0.5 in")

# Sketch on XY plane
sketch8 = doc.addObject("Sketcher::SketchObject", "Sketch007")
body.addObject(sketch8)
sketch8.AttachmentSupport = (doc.XY_Plane, [""])
sketch8.MapMode = "FlatFace"
sketch8.AttachmentOffset = App.Placement(V(0, 0, 1 * 25.4), App.Rotation())
sketch8.addGeometry(Part.LineSegment(V(-5245, 5690, 0), V(-5753, 5690, 0)), False)
sketch8.addGeometry(Part.LineSegment(V(-5753, 5690, 0), V(-5753, 5461, 0)), False)
sketch8.addGeometry(Part.ArcOfCircle(Part.Circle(V(-5601, 5461, 0), V(0, 0, 1), 152), math.radians(180), math.radians(270)), False)
sketch8.addGeometry(Part.LineSegment(V(-5601, 5309, 0), V(-5398, 5309, 0)), False)
sketch8.addGeometry(Part.ArcOfCircle(Part.Circle(V(-5398, 5461, 0), V(0, 0, 1), 152), math.radians(-90), math.radians(0)), False)
sketch8.addGeometry(Part.LineSegment(V(-5245, 5461, 0), V(-5245, 5690, 0)), False)
sketch8.addConstraint(Sketcher.Constraint("Coincident", 0, 2, 1, 1))
sketch8.addConstraint(Sketcher.Constraint("Tangent", 1, 2, 2, 1))
sketch8.addConstraint(Sketcher.Constraint("Tangent", 2, 2, 3, 1))
sketch8.addConstraint(Sketcher.Constraint("Tangent", 3, 2, 4, 1))
sketch8.addConstraint(Sketcher.Constraint("Tangent", 4, 2, 5, 1))
sketch8.addConstraint(Sketcher.Constraint("Coincident", 5, 2, 0, 1))
sketch8.addConstraint(Sketcher.Constraint("Horizontal", 0))
sketch8.addConstraint(Sketcher.Constraint("Vertical", 1))
sketch8.addConstraint(Sketcher.Constraint("Horizontal", 3))
sketch8.addConstraint(Sketcher.Constraint("Vertical", 5))
sketch8.addConstraint(Sketcher.Constraint("Equal", 2, 4))
sketch8.addConstraint(Sketcher.Constraint("Radius", 2, Q("6 in")))
sketch8.addConstraint(Sketcher.Constraint("DistanceX", 0, 2, 0, 1, Q("20 in")))
sketch8.addConstraint(Sketcher.Constraint("DistanceY", 1, 2, 1, 1, Q("9 in")))
sketch8.addConstraint(Sketcher.Constraint("DistanceY", -1, 1, 2, 3, Q("215 in")))
sketch8.addConstraint(Sketcher.Constraint("DistanceX", 2, 3, -1, 1, Q("220.5 in")))
pad8 = doc.addObject("PartDesign::Pad", "Pad007")
body.addObject(pad8)
pad8.Profile = sketch8
pad8.Length = Q("2 in")

# Sketch on XY plane
sketch9 = doc.addObject("Sketcher::SketchObject", "Sketch008")
body.addObject(sketch9)
sketch9.AttachmentSupport = (doc.XY_Plane, [""])
sketch9.MapMode = "FlatFace"
sketch9.AttachmentOffset = App.Placement(V(0, 0, 1 * 25.4), App.Rotation())
sketch9.addGeometry(Part.LineSegment(V(-267, 190, 0), V(-4153, 190, 0)), False)
sketch9.addGeometry(Part.LineSegment(V(-4153, 190, 0), V(-4153, 114, 0)), False)
sketch9.addGeometry(Part.LineSegment(V(-4153, 114, 0), V(-114, 114, 0)), False)
sketch9.addGeometry(Part.LineSegment(V(-114, 114, 0), V(-114, 5270, 0)), False)
sketch9.addGeometry(Part.LineSegment(V(-114, 5270, 0), V(-267, 5270, 0)), False)
sketch9.addGeometry(Part.LineSegment(V(-267, 5270, 0), V(-267, 190, 0)), False)
sketch9.addGeometry(Part.LineSegment(V(-267, 6621, 0), V(-267, 6121, 0)), False)
sketch9.addGeometry(Part.LineSegment(V(-267, 6121, 0), V(-114, 6121, 0)), False)
sketch9.addGeometry(Part.LineSegment(V(-114, 6121, 0), V(-114, 6621, 0)), False)
sketch9.addGeometry(Part.LineSegment(V(-114, 6621, 0), V(-267, 6621, 0)), False)
sketch9.addConstraint(Sketcher.Constraint("Coincident", 0, 2, 1, 1))
sketch9.addConstraint(Sketcher.Constraint("Coincident", 1, 2, 2, 1))
sketch9.addConstraint(Sketcher.Constraint("Coincident", 2, 2, 3, 1))
sketch9.addConstraint(Sketcher.Constraint("Coincident", 3, 2, 4, 1))
sketch9.addConstraint(Sketcher.Constraint("Coincident", 4, 2, 5, 1))
sketch9.addConstraint(Sketcher.Constraint("Coincident", 5, 2, 0, 1))
sketch9.addConstraint(Sketcher.Constraint("Coincident", 6, 2, 7, 1))
sketch9.addConstraint(Sketcher.Constraint("Coincident", 7, 2, 8, 1))
sketch9.addConstraint(Sketcher.Constraint("Coincident", 8, 2, 9, 1))
sketch9.addConstraint(Sketcher.Constraint("Coincident", 9, 2, 6, 1))
sketch9.addConstraint(Sketcher.Constraint("Horizontal", 0))
sketch9.addConstraint(Sketcher.Constraint("Vertical", 1))
sketch9.addConstraint(Sketcher.Constraint("Horizontal", 2))
sketch9.addConstraint(Sketcher.Constraint("Vertical", 3))
sketch9.addConstraint(Sketcher.Constraint("Horizontal", 4))
sketch9.addConstraint(Sketcher.Constraint("Vertical", 5))
sketch9.addConstraint(Sketcher.Constraint("Vertical", 6))
sketch9.addConstraint(Sketcher.Constraint("Horizontal", 7))
sketch9.addConstraint(Sketcher.Constraint("Vertical", 8))
sketch9.addConstraint(Sketcher.Constraint("Horizontal", 9))
sketch9.addConstraint(Sketcher.Constraint("Vertical", 5, 2, 6, 2))
sketch9.addConstraint(Sketcher.Constraint("Vertical", 3, 2, 7, 2))
sketch9.addConstraint(Sketcher.Constraint("DistanceX", 0, 2, 0, 1, Q("153 in")))
sketch9.addConstraint(Sketcher.Constraint("DistanceX", 2, 1, 2, 2, Q("159 in")))
sketch9.addConstraint(Sketcher.Constraint("DistanceY", 1, 2, 1, 1, Q("3 in")))
sketch9.addConstraint(Sketcher.Constraint("DistanceY", 3, 1, 3, 2, Q("203 in")))
sketch9.addConstraint(Sketcher.Constraint("DistanceY", -1, 1, 6, 2, Q("241 in")))
sketch9.addConstraint(Sketcher.Constraint("DistanceX", 0, 2, -1, 1, Q("163.5 in")))
sketch9.addConstraint(Sketcher.Constraint("DistanceY", -1, 1, 0, 2, Q("7.5 in")))
sketch9.addConstraint(Sketcher.Constraint("DistanceY", 6, 2, 6, 1, Q("499.861933 mm")))
pad9 = doc.addObject("PartDesign::Pad", "Pad008")
body.addObject(pad9)
pad9.Profile = sketch9
pad9.Length = Q("6 in")

# Sketch on XY plane
sketch10 = doc.addObject("Sketcher::SketchObject", "Sketch009")
body.addObject(sketch10)
sketch10.AttachmentSupport = (doc.XY_Plane, [""])
sketch10.MapMode = "FlatFace"
sketch10.AttachmentOffset = App.Placement(V(0, 0, 7 * 25.4), App.Rotation())
sketch10.addGeometry(Part.LineSegment(V(-2476, 190, 0), V(-2476, 114, 0)), False)
sketch10.addGeometry(Part.LineSegment(V(-2476, 114, 0), V(-1257, 114, 0)), False)
sketch10.addGeometry(Part.LineSegment(V(-1257, 114, 0), V(-1257, 190, 0)), False)
sketch10.addGeometry(Part.LineSegment(V(-1257, 190, 0), V(-2476, 190, 0)), False)
sketch10.addConstraint(Sketcher.Constraint("Coincident", 0, 2, 1, 1))
sketch10.addConstraint(Sketcher.Constraint("Coincident", 1, 2, 2, 1))
sketch10.addConstraint(Sketcher.Constraint("Coincident", 2, 2, 3, 1))
sketch10.addConstraint(Sketcher.Constraint("Coincident", 3, 2, 0, 1))
sketch10.addConstraint(Sketcher.Constraint("Vertical", 0))
sketch10.addConstraint(Sketcher.Constraint("Horizontal", 1))
sketch10.addConstraint(Sketcher.Constraint("Vertical", 2))
sketch10.addConstraint(Sketcher.Constraint("Horizontal", 3))
sketch10.addConstraint(Sketcher.Constraint("DistanceX", 1, 1, 1, 2, Q("48 in")))
sketch10.addConstraint(Sketcher.Constraint("DistanceY", 0, 2, 0, 1, Q("3 in")))
sketch10.addConstraint(Sketcher.Constraint("DistanceX", 0, 2, -1, 1, Q("97.5 in")))
sketch10.addConstraint(Sketcher.Constraint("DistanceY", -1, 1, 0, 2, Q("4.5 in")))
pocket1 = doc.addObject("PartDesign::Pocket", "Pocket")
body.addObject(pocket1)
pocket1.Profile = sketch10
pocket1.Length = Q("1 in")

doc.recompute()
